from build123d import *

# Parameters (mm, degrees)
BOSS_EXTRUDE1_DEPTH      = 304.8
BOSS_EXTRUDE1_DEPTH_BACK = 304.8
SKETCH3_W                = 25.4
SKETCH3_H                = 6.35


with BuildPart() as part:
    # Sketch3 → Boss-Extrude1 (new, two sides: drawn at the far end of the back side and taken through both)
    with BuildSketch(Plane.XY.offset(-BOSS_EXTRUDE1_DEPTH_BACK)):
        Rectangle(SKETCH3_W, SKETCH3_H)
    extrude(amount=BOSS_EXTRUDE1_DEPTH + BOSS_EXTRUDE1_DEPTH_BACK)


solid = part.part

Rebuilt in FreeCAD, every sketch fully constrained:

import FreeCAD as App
import Part
import Sketcher
Q = App.Units.Quantity

doc = App.newDocument("Part")
params = doc.addObject("Spreadsheet::Sheet", "Params")
for row, (alias, value) in enumerate([
    ("sketch1_width", "1 in"),
    ("sketch1_height", "0.25 in"),
    ("pad1_length", "12 in"),
    ("pad1_length2", "12 in"),
], start=1):
    params.set(f"A{row}", alias)
    params.set(f"B{row}", "=" + value)
    params.setAlias(f"B{row}", alias)

body = doc.addObject("PartDesign::Body", "Body")

# Sketch on XY plane
sketch1 = body.newObject("Sketcher::SketchObject", "Sketch")
sketch1.AttachmentSupport = (doc.getObject("XY_Plane"), [""])
sketch1.MapMode = "FlatFace"
sketch1.addGeometry([
    Part.LineSegment(App.Vector(-13, 3, 0), App.Vector(-13, -3, 0)),
    Part.LineSegment(App.Vector(-13, -3, 0), App.Vector(13, -3, 0)),
    Part.LineSegment(App.Vector(13, -3, 0), App.Vector(13, 3, 0)),
    Part.LineSegment(App.Vector(13, 3, 0), App.Vector(-13, 3, 0)),
], False)
sketch1.addConstraint([
    Sketcher.Constraint("Coincident", 0, 2, 1, 1),
    Sketcher.Constraint("Coincident", 1, 2, 2, 1),
    Sketcher.Constraint("Coincident", 2, 2, 3, 1),
    Sketcher.Constraint("Coincident", 3, 2, 0, 1),
    Sketcher.Constraint("Vertical", 0),
    Sketcher.Constraint("Horizontal", 1),
    Sketcher.Constraint("Vertical", 2),
    Sketcher.Constraint("Horizontal", 3),
    Sketcher.Constraint("Symmetric", 0, 2, 2, 2, -1, 1),
    Sketcher.Constraint("DistanceX", 1, 1, 1, 2, Q("1 in")),
    Sketcher.Constraint("DistanceY", 0, 2, 0, 1, Q("0.25 in")),
])
sketch1.setExpression("Constraints[9]", "Params.sketch1_width")
sketch1.setExpression("Constraints[10]", "Params.sketch1_height")
pad1 = body.newObject("PartDesign::Pad", "Pad")
pad1.Profile = sketch1
pad1.Type = "TwoLengths"
pad1.setExpression("Length", "Params.pad1_length")
pad1.setExpression("Length2", "Params.pad1_length2")

doc.recompute()
